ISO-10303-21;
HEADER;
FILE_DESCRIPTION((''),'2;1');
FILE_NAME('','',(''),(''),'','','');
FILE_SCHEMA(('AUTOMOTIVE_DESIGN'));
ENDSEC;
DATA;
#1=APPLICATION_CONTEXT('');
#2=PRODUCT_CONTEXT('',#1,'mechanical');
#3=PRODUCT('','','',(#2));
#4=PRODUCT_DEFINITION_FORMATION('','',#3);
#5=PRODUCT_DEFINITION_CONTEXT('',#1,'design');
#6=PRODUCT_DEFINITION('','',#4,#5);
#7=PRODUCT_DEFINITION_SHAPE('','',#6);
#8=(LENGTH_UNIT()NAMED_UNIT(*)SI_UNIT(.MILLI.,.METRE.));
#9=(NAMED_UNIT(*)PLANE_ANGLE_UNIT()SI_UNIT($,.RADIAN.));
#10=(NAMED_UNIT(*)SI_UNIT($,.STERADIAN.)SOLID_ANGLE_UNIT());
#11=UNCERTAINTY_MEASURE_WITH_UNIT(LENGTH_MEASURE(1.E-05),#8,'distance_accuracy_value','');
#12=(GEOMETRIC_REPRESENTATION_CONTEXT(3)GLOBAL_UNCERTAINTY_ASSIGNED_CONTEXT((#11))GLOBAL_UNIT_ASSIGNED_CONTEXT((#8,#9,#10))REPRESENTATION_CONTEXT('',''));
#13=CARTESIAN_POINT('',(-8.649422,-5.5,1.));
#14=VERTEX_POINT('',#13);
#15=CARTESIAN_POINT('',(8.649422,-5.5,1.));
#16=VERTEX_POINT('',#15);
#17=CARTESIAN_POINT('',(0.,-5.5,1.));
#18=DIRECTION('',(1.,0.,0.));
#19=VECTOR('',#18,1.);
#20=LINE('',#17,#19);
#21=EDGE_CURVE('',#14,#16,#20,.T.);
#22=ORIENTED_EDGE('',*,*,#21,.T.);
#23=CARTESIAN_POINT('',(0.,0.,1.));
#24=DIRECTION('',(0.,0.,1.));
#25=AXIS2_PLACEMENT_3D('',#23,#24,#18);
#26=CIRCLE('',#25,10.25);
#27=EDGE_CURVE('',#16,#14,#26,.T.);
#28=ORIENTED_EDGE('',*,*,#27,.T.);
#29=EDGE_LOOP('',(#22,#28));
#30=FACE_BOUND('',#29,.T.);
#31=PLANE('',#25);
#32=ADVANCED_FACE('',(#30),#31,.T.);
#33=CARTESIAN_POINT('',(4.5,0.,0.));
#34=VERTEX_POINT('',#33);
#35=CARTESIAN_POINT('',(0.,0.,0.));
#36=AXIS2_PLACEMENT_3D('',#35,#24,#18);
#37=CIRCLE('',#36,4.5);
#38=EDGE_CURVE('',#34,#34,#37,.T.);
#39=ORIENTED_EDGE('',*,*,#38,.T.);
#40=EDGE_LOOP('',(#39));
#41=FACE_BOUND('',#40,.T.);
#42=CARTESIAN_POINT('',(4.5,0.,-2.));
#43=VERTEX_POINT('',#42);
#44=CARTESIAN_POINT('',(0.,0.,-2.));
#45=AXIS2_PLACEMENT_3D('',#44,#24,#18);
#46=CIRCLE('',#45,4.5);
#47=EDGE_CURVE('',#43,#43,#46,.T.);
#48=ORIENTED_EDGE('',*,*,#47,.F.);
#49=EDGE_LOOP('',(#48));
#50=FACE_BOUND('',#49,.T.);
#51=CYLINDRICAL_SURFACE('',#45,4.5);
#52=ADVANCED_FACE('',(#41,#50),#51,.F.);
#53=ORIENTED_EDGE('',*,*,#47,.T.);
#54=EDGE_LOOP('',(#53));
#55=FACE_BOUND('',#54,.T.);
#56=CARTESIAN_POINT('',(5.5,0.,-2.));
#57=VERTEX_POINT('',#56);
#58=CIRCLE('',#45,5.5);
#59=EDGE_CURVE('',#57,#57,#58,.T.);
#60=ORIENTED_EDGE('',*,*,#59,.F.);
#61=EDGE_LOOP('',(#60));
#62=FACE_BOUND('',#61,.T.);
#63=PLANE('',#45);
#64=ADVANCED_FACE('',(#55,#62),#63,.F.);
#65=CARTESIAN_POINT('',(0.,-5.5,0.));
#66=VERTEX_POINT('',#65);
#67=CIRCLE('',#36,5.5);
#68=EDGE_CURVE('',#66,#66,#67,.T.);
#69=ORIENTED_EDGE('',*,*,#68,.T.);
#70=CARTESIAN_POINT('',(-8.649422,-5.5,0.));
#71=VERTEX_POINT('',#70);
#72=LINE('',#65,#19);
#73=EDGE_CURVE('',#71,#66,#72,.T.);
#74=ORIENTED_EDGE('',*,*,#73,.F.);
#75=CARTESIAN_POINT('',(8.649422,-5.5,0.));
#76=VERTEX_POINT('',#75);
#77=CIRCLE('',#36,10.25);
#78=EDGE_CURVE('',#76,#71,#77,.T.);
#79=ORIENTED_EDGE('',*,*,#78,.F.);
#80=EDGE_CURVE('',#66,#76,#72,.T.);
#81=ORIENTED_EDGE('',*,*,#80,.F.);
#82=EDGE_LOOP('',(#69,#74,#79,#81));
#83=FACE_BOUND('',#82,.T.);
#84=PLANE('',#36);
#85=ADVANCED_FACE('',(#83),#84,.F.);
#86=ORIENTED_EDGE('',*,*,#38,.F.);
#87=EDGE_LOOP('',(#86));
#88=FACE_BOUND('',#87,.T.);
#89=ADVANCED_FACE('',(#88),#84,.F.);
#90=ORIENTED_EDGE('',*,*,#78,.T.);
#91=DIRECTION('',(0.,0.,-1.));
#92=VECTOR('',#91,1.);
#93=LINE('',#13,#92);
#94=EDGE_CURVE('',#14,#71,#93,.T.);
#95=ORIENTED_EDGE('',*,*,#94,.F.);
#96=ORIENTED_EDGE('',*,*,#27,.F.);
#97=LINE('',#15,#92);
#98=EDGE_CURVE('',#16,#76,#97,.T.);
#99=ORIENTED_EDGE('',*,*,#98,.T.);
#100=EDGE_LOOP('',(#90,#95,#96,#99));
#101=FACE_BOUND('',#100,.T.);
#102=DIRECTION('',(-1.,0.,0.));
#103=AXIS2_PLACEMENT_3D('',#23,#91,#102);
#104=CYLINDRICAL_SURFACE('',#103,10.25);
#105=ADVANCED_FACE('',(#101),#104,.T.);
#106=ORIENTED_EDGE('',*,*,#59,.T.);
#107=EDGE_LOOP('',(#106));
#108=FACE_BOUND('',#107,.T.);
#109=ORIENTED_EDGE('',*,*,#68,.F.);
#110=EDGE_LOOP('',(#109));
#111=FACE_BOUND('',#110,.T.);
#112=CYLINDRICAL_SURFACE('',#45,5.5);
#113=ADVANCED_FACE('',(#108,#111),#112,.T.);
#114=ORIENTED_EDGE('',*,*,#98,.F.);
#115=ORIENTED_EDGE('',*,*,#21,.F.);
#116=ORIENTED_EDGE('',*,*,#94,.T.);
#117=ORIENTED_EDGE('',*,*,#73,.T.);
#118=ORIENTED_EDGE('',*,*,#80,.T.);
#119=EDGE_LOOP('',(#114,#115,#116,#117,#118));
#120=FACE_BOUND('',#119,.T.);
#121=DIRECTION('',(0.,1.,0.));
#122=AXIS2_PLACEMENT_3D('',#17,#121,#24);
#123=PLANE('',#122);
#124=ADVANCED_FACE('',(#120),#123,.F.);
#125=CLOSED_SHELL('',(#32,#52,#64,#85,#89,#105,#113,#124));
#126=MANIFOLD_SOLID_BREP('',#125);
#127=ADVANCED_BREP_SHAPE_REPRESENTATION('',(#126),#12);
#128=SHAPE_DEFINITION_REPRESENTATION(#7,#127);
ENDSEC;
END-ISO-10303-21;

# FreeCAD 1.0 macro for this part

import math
import FreeCAD as App
import Part
import Sketcher
from FreeCAD import Vector

doc = App.newDocument("Part")
body = doc.addObject("PartDesign::Body", "Body")

# Sketch on XY plane
sketch1 = doc.addObject("Sketcher::SketchObject", "Sketch")
body.addObject(sketch1)
sketch1.AttachmentSupport = (doc.XY_Plane, [""])
sketch1.MapMode = "FlatFace"
sketch1.addGeometry([
    Part.LineSegment(Vector(-8.649422, -5.5, 0), Vector(8.649422, -5.5, 0)),
    Part.ArcOfCircle(Part.Circle(Vector(0, 0, 0), Vector(0, 0, 1), 10.25), math.radians(-32.451491), math.radians(212.451491)),
], False)
sketch1.addConstraint([
    Sketcher.Constraint("Coincident", 0, 1, 1, 2),
    Sketcher.Constraint("Coincident", 1, 1, 0, 2),
    Sketcher.Constraint("Horizontal", 0),
    Sketcher.Constraint("Coincident", 1, 3, -1, 1),
    Sketcher.Constraint("Radius", 1, 10.25),
    Sketcher.Constraint("DistanceY", 0, 1, -1, 1, 5.5),
])
pad1 = doc.addObject("PartDesign::Pad", "Pad")
body.addObject(pad1)
pad1.Profile = sketch1
pad1.Length = 1

# Sketch on XY plane
sketch2 = doc.addObject("Sketcher::SketchObject", "Sketch001")
body.addObject(sketch2)
sketch2.AttachmentSupport = (doc.XY_Plane, [""])
sketch2.MapMode = "FlatFace"
sketch2.addGeometry([
    Part.Circle(Vector(0, 0, 0), Vector(0, 0, 1), 5.5),
    Part.Circle(Vector(0, 0, 0), Vector(0, 0, 1), 4.5),
], False)
sketch2.addConstraint([
    Sketcher.Constraint("Coincident", 0, 3, -1, 1),
    Sketcher.Constraint("Coincident", 1, 3, -1, 1),
    Sketcher.Constraint("Diameter", 0, 11.0),
    Sketcher.Constraint("Diameter", 1, 9.0),
])
pad2 = doc.addObject("PartDesign::Pad", "Pad001")
body.addObject(pad2)
pad2.Profile = sketch2
pad2.Length = 2
pad2.Reversed = True

doc.recompute()
